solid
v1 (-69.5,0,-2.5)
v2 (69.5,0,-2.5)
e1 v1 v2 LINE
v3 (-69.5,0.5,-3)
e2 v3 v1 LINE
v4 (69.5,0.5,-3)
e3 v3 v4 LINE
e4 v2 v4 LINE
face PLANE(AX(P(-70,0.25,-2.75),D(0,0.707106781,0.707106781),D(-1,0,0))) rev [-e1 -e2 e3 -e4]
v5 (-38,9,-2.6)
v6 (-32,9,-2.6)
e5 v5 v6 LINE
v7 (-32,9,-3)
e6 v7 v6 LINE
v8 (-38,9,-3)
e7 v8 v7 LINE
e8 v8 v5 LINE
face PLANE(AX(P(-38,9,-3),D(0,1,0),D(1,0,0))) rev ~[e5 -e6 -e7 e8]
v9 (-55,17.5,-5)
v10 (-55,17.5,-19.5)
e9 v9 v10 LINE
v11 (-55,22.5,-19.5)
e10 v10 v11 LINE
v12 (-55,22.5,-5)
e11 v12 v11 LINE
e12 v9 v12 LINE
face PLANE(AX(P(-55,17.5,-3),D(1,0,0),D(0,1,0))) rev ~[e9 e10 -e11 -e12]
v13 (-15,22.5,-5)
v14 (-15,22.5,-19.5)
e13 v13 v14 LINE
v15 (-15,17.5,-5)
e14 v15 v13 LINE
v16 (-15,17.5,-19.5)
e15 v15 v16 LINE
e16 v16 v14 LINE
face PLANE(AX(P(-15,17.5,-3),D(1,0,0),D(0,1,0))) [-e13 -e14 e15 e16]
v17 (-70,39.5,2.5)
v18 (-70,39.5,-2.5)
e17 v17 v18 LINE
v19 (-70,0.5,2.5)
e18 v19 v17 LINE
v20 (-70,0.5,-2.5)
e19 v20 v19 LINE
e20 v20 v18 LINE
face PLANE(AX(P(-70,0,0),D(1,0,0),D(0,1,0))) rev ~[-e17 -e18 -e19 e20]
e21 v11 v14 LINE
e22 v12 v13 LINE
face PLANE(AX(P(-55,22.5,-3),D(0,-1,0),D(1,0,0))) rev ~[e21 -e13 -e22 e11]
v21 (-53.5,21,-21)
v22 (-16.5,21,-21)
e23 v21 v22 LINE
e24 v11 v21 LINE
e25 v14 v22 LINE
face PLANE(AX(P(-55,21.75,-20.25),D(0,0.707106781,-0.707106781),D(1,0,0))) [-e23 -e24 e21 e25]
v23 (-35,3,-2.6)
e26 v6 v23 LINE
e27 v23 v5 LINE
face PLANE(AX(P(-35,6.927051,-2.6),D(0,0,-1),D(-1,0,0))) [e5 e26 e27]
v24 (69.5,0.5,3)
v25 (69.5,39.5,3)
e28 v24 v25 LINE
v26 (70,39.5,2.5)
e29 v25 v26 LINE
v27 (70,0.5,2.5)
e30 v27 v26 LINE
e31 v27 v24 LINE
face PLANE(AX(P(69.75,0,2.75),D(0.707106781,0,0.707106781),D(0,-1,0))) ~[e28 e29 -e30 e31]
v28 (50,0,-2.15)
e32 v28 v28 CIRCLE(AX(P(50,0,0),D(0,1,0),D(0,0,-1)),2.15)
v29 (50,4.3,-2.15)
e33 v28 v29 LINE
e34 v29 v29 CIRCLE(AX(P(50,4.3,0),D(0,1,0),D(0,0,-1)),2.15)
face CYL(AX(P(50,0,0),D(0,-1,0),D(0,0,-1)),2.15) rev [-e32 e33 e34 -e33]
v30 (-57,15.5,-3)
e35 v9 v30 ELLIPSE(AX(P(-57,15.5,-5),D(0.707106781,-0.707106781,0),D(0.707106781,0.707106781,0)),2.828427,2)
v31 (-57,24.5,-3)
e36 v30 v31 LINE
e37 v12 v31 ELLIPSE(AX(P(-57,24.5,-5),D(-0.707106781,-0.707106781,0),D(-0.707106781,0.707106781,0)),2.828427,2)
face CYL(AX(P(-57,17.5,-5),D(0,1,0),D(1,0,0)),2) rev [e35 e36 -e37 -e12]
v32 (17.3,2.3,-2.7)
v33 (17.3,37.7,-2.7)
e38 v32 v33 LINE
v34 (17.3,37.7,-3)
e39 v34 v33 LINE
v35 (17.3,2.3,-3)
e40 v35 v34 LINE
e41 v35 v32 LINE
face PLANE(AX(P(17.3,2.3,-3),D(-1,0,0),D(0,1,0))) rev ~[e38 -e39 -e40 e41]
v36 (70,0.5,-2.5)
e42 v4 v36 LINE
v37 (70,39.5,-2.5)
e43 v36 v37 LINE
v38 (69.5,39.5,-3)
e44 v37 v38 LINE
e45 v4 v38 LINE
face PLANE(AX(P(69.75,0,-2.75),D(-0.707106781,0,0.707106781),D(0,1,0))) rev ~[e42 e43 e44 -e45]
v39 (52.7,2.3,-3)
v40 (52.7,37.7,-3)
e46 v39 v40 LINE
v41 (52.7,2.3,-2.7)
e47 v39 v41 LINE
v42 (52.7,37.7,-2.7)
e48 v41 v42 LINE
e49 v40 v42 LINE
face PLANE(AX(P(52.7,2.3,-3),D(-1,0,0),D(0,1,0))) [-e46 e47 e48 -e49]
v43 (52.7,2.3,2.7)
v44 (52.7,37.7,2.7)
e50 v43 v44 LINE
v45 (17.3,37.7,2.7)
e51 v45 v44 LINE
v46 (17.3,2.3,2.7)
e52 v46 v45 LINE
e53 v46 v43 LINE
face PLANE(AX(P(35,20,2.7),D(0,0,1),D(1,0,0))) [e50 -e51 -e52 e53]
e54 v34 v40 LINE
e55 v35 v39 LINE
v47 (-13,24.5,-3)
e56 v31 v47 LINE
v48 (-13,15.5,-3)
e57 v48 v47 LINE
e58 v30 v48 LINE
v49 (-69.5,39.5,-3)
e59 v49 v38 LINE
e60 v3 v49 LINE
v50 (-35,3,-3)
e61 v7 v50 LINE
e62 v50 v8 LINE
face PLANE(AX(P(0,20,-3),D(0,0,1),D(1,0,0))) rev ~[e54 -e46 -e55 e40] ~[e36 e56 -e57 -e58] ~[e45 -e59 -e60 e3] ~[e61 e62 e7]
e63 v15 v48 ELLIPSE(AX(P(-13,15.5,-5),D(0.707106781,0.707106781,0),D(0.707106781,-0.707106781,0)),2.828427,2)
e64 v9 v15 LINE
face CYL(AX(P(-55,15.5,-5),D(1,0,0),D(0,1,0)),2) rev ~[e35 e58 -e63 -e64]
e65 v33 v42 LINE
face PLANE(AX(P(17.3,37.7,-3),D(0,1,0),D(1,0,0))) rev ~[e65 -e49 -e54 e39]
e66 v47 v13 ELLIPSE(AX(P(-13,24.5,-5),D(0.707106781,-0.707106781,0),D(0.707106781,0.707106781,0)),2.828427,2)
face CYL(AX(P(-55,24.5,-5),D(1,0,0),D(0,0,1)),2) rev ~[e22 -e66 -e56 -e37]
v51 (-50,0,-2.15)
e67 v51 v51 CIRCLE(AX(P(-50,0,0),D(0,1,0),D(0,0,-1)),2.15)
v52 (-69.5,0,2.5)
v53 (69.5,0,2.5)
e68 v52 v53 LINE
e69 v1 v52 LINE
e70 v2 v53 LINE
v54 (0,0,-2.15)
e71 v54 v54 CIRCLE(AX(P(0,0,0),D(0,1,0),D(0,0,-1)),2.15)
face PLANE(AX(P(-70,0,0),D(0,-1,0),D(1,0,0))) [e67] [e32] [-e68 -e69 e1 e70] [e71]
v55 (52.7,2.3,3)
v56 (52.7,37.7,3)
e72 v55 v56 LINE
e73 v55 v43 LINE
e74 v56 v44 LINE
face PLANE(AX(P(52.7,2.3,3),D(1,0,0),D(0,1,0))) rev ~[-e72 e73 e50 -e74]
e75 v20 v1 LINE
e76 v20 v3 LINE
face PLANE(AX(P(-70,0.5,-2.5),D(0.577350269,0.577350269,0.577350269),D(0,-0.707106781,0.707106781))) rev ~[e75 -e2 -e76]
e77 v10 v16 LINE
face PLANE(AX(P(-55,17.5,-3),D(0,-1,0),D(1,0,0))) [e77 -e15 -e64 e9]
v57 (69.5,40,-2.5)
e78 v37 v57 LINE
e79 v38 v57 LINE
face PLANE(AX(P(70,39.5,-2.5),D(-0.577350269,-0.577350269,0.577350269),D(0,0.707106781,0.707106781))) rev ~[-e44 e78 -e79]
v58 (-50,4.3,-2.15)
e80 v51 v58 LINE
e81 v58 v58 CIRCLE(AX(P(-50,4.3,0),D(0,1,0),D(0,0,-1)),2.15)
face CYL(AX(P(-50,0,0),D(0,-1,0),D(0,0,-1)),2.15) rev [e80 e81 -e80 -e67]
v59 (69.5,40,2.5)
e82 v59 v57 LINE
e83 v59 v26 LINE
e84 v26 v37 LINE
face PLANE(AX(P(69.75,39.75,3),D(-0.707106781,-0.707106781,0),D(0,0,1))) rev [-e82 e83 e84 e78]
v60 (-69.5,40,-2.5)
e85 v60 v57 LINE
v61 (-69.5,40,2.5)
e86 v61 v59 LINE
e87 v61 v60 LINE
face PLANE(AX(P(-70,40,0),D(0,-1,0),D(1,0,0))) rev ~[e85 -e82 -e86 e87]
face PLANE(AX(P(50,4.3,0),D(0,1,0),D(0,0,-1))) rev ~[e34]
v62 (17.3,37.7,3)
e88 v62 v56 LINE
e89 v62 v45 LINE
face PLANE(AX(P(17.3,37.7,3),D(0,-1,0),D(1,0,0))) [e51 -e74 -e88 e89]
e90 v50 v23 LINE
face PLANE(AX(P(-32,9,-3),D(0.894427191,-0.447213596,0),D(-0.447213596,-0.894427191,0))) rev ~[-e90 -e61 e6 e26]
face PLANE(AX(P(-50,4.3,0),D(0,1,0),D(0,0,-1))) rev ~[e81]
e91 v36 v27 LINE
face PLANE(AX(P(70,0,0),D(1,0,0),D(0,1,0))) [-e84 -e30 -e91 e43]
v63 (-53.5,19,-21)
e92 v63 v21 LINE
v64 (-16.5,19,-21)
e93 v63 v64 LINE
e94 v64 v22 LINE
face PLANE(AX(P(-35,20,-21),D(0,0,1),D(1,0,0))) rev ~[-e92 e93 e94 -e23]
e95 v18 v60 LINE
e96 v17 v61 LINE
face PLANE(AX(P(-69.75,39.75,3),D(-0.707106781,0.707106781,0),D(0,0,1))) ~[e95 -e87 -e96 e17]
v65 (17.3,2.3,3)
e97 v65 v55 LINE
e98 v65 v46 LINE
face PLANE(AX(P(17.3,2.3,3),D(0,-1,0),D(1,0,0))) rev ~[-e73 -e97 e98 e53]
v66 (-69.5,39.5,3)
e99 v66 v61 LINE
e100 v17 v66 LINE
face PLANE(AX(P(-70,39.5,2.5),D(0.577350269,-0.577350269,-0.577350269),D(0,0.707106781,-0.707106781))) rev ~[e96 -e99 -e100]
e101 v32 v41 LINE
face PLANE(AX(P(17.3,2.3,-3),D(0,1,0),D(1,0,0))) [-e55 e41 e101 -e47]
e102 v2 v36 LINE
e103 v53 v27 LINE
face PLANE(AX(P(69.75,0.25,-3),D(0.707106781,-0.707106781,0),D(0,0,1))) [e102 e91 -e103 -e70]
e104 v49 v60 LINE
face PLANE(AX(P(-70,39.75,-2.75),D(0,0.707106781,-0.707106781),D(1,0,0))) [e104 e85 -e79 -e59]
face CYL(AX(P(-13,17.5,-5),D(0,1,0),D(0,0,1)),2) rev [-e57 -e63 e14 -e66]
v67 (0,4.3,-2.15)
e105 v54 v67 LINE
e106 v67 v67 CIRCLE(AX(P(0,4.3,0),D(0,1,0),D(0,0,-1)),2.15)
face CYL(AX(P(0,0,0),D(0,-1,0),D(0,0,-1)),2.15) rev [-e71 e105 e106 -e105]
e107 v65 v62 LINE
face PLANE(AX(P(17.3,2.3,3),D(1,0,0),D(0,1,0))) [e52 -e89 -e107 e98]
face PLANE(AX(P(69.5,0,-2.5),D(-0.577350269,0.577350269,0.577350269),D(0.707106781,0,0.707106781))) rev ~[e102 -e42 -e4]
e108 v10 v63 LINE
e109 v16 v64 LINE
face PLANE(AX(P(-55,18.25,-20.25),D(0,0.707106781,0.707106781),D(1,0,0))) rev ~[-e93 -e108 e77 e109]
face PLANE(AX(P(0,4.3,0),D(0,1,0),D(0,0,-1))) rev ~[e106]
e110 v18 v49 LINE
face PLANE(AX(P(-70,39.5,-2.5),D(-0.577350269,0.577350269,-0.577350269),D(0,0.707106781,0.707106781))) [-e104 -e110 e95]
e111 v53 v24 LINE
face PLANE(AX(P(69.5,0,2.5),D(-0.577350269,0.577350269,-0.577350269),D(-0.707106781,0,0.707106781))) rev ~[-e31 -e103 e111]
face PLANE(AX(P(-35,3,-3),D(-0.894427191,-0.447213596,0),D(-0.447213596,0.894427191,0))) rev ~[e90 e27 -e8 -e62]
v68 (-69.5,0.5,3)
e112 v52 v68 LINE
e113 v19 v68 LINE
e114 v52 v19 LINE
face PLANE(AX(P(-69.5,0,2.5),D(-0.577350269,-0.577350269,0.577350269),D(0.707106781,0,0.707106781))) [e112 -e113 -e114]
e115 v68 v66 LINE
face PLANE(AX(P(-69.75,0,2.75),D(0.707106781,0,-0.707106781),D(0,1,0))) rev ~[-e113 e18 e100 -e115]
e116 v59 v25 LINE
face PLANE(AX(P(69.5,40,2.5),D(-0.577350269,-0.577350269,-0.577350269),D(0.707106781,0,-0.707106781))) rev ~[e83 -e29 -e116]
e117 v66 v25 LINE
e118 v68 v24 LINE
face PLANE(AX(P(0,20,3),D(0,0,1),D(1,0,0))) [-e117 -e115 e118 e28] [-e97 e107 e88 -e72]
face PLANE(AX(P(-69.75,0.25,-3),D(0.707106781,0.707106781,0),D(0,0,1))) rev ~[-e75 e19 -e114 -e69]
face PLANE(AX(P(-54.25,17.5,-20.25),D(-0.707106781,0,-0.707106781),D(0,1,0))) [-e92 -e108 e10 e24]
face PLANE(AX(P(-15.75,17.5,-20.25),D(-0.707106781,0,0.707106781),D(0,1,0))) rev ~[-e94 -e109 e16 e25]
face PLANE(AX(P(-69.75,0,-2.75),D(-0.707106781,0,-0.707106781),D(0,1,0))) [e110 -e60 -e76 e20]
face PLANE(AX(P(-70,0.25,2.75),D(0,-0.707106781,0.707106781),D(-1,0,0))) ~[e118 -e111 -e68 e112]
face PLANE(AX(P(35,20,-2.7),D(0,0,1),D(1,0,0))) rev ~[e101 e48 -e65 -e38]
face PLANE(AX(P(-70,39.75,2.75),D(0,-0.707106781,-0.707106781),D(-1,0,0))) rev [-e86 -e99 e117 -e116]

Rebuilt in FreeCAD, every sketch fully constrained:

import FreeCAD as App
import Part
import Sketcher
Q = App.Units.Quantity


def edges_at(feature, points):
    """Names of the edges that pass closest to the given points."""
    edges = feature.Shape.Edges
    near = lambda p: min(range(len(edges)), key=lambda i: edges[i].distToShape(Part.Vertex(*p))[0])
    return sorted({f"Edge{near(p) + 1}" for p in points})


def add_polygon(sketch, points):
    """Adds a closed chain of lines whose ends are joined by coincident constraints."""
    first, n = sketch.GeometryCount, len(points)
    for a, b in zip(points, points[1:] + points[:1]):
        sketch.addGeometry(Part.LineSegment(App.Vector(*a, 0), App.Vector(*b, 0)), False)
    for i in range(n):
        sketch.addConstraint(Sketcher.Constraint("Coincident", first + i, 2, first + (i + 1) % n, 1))

doc = App.newDocument("Part")
body = doc.addObject("PartDesign::Body", "Body")

sketch1 = body.newObject("Sketcher::SketchObject", "Sketch")
sketch1.AttachmentSupport = (doc.getObject("XY_Plane"), [""])
sketch1.MapMode = "FlatFace"
add_polygon(sketch1, [(-70, 40), (-70, 0), (70, 0), (70, 40)])
sketch1.addConstraint([
    Sketcher.Constraint("Vertical", 0),
    Sketcher.Constraint("Horizontal", 1),
    Sketcher.Constraint("Vertical", 2),
    Sketcher.Constraint("Horizontal", 3),
    Sketcher.Constraint("Symmetric", 0, 2, 1, 2, -1, 1),
    Sketcher.Constraint("DistanceX", 1, 1, 1, 2, Q("140 mm")),
    Sketcher.Constraint("DistanceY", 0, 2, 0, 1, Q("40 mm")),
])
pad1 = body.newObject("PartDesign::Pad", "Pad")
pad1.Profile = sketch1
pad1.Length = 6
pad1.Midplane = True
doc.recompute()

chamfer = body.newObject("PartDesign::Chamfer", "Chamfer")
chamfer.Base = (pad1, ["Edge1"])
chamfer.UseAllEdges = True
chamfer.Size = 0.5

sketch2 = body.newObject("Sketcher::SketchObject", "Sketch001")
sketch2.AttachmentSupport = (doc.getObject("XY_Plane"), [""])
sketch2.MapMode = "FlatFace"
sketch2.AttachmentOffset = App.Placement(App.Vector(0, 0, -3), App.Rotation())
add_polygon(sketch2, [(-55, 22.5), (-55, 17.5), (-15, 17.5), (-15, 22.5)])
sketch2.addConstraint([
    Sketcher.Constraint("Vertical", 0),
    Sketcher.Constraint("Horizontal", 1),
    Sketcher.Constraint("Vertical", 2),
    Sketcher.Constraint("Horizontal", 3),
    Sketcher.Constraint("DistanceX", 1, 1, 1, 2, Q("40 mm")),
    Sketcher.Constraint("DistanceY", 0, 2, 0, 1, Q("5 mm")),
    Sketcher.Constraint("DistanceX", 0, 2, -1, 1, Q("55 mm")),
    Sketcher.Constraint("DistanceY", -1, 1, 0, 2, Q("17.5 mm")),
])
pad2 = body.newObject("PartDesign::Pad", "Pad001")
pad2.Profile = sketch2
pad2.Length = 18
pad2.Reversed = True
doc.recompute()

chamfer2 = body.newObject("PartDesign::Chamfer", "Chamfer001")
chamfer2.Base = (pad2, edges_at(pad2, [
    (-55, 20, -21),
    (-35, 22.5, -21),
    (-15, 20, -21),
    (-35, 17.5, -21),
]))
chamfer2.Size = 1.5
doc.recompute()

fillet = body.newObject("PartDesign::Fillet", "Fillet")
fillet.Base = (chamfer2, edges_at(chamfer2, [
    (-55, 20, -3),
    (-35, 17.5, -3),
    (-15, 20, -3),
    (-35, 22.5, -3),
]))
fillet.Radius = 2

sketch3 = body.newObject("Sketcher::SketchObject", "Sketch002")
sketch3.AttachmentSupport = (doc.getObject("XZ_Plane"), [""])
sketch3.MapMode = "FlatFace"
sketch3.addGeometry([
    Part.Circle(App.Vector(-50, 0, 0), App.Vector(0, 0, 1), 2.15),
    Part.Circle(App.Vector(0, 0, 0), App.Vector(0, 0, 1), 2.15),
    Part.Circle(App.Vector(50, 0, 0), App.Vector(0, 0, 1), 2.15),
], False)
sketch3.addConstraint([
    Sketcher.Constraint("Coincident", 1, 3, -1, 1),
    Sketcher.Constraint("Equal", 0, 1),
    Sketcher.Constraint("Equal", 1, 2),
    Sketcher.Constraint("Symmetric", 0, 3, 2, 3, -1, 1),
    Sketcher.Constraint("PointOnObject", 0, 3, -1),
    Sketcher.Constraint("Diameter", 0, Q("4.3 mm")),
    Sketcher.Constraint("DistanceX", 0, 3, -1, 1, Q("50 mm")),
])
pocket1 = body.newObject("PartDesign::Pocket", "Pocket")
pocket1.Profile = sketch3
pocket1.Length = 4.3

sketch4 = body.newObject("Sketcher::SketchObject", "Sketch003")
sketch4.AttachmentSupport = (doc.getObject("XY_Plane"), [""])
sketch4.MapMode = "FlatFace"
sketch4.AttachmentOffset = App.Placement(App.Vector(0, 0, 3), App.Rotation())
add_polygon(sketch4, [(17.3, 37.7), (17.3, 2.3), (52.7, 2.3), (52.7, 37.7)])
sketch4.addConstraint([
    Sketcher.Constraint("Vertical", 0),
    Sketcher.Constraint("Horizontal", 1),
    Sketcher.Constraint("Vertical", 2),
    Sketcher.Constraint("Horizontal", 3),
    Sketcher.Constraint("Equal", 3, 0),
    Sketcher.Constraint("DistanceX", 1, 1, 1, 2, Q("35.4 mm")),
    Sketcher.Constraint("DistanceX", -1, 1, 0, 2, Q("17.3 mm")),
    Sketcher.Constraint("DistanceY", -1, 1, 0, 2, Q("2.3 mm")),
])
pocket2 = body.newObject("PartDesign::Pocket", "Pocket001")
pocket2.Profile = sketch4
pocket2.Length = 0.3

sketch5 = body.newObject("Sketcher::SketchObject", "Sketch004")
sketch5.AttachmentSupport = (doc.getObject("XY_Plane"), [""])
sketch5.MapMode = "FlatFace"
sketch5.AttachmentOffset = App.Placement(App.Vector(0, 0, -3), App.Rotation())
add_polygon(sketch5, [(17.3, 37.7), (17.3, 2.3), (52.7, 2.3), (52.7, 37.7)])
sketch5.addConstraint([
    Sketcher.Constraint("Vertical", 0),
    Sketcher.Constraint("Horizontal", 1),
    Sketcher.Constraint("Vertical", 2),
    Sketcher.Constraint("Horizontal", 3),
    Sketcher.Constraint("Equal", 3, 0),
    Sketcher.Constraint("DistanceX", 1, 1, 1, 2, Q("35.4 mm")),
    Sketcher.Constraint("DistanceX", -1, 1, 0, 2, Q("17.3 mm")),
    Sketcher.Constraint("DistanceY", -1, 1, 0, 2, Q("2.3 mm")),
])
pocket3 = body.newObject("PartDesign::Pocket", "Pocket002")
pocket3.Profile = sketch5
pocket3.Length = 0.3
pocket3.Reversed = True

sketch6 = body.newObject("Sketcher::SketchObject", "Sketch005")
sketch6.AttachmentSupport = (doc.getObject("XY_Plane"), [""])
sketch6.MapMode = "FlatFace"
sketch6.AttachmentOffset = App.Placement(App.Vector(0, 0, -3), App.Rotation())
add_polygon(sketch6, [(-32, 9), (-38, 9), (-35, 3)])
sketch6.addConstraint([
    Sketcher.Constraint("Horizontal", 0),
    Sketcher.Constraint("Equal", 1, 2),
    Sketcher.Constraint("DistanceX", 0, 2, 0, 1, Q("6 mm")),
    Sketcher.Constraint("DistanceX", 0, 2, -1, 1, Q("38 mm")),
    Sketcher.Constraint("DistanceY", -1, 1, 0, 2, Q("9 mm")),
    Sketcher.Constraint("DistanceY", -1, 1, 1, 2, Q("3 mm")),
])
pocket4 = body.newObject("PartDesign::Pocket", "Pocket003")
pocket4.Profile = sketch6
pocket4.Length = 0.4
pocket4.Reversed = True

doc.recompute()
